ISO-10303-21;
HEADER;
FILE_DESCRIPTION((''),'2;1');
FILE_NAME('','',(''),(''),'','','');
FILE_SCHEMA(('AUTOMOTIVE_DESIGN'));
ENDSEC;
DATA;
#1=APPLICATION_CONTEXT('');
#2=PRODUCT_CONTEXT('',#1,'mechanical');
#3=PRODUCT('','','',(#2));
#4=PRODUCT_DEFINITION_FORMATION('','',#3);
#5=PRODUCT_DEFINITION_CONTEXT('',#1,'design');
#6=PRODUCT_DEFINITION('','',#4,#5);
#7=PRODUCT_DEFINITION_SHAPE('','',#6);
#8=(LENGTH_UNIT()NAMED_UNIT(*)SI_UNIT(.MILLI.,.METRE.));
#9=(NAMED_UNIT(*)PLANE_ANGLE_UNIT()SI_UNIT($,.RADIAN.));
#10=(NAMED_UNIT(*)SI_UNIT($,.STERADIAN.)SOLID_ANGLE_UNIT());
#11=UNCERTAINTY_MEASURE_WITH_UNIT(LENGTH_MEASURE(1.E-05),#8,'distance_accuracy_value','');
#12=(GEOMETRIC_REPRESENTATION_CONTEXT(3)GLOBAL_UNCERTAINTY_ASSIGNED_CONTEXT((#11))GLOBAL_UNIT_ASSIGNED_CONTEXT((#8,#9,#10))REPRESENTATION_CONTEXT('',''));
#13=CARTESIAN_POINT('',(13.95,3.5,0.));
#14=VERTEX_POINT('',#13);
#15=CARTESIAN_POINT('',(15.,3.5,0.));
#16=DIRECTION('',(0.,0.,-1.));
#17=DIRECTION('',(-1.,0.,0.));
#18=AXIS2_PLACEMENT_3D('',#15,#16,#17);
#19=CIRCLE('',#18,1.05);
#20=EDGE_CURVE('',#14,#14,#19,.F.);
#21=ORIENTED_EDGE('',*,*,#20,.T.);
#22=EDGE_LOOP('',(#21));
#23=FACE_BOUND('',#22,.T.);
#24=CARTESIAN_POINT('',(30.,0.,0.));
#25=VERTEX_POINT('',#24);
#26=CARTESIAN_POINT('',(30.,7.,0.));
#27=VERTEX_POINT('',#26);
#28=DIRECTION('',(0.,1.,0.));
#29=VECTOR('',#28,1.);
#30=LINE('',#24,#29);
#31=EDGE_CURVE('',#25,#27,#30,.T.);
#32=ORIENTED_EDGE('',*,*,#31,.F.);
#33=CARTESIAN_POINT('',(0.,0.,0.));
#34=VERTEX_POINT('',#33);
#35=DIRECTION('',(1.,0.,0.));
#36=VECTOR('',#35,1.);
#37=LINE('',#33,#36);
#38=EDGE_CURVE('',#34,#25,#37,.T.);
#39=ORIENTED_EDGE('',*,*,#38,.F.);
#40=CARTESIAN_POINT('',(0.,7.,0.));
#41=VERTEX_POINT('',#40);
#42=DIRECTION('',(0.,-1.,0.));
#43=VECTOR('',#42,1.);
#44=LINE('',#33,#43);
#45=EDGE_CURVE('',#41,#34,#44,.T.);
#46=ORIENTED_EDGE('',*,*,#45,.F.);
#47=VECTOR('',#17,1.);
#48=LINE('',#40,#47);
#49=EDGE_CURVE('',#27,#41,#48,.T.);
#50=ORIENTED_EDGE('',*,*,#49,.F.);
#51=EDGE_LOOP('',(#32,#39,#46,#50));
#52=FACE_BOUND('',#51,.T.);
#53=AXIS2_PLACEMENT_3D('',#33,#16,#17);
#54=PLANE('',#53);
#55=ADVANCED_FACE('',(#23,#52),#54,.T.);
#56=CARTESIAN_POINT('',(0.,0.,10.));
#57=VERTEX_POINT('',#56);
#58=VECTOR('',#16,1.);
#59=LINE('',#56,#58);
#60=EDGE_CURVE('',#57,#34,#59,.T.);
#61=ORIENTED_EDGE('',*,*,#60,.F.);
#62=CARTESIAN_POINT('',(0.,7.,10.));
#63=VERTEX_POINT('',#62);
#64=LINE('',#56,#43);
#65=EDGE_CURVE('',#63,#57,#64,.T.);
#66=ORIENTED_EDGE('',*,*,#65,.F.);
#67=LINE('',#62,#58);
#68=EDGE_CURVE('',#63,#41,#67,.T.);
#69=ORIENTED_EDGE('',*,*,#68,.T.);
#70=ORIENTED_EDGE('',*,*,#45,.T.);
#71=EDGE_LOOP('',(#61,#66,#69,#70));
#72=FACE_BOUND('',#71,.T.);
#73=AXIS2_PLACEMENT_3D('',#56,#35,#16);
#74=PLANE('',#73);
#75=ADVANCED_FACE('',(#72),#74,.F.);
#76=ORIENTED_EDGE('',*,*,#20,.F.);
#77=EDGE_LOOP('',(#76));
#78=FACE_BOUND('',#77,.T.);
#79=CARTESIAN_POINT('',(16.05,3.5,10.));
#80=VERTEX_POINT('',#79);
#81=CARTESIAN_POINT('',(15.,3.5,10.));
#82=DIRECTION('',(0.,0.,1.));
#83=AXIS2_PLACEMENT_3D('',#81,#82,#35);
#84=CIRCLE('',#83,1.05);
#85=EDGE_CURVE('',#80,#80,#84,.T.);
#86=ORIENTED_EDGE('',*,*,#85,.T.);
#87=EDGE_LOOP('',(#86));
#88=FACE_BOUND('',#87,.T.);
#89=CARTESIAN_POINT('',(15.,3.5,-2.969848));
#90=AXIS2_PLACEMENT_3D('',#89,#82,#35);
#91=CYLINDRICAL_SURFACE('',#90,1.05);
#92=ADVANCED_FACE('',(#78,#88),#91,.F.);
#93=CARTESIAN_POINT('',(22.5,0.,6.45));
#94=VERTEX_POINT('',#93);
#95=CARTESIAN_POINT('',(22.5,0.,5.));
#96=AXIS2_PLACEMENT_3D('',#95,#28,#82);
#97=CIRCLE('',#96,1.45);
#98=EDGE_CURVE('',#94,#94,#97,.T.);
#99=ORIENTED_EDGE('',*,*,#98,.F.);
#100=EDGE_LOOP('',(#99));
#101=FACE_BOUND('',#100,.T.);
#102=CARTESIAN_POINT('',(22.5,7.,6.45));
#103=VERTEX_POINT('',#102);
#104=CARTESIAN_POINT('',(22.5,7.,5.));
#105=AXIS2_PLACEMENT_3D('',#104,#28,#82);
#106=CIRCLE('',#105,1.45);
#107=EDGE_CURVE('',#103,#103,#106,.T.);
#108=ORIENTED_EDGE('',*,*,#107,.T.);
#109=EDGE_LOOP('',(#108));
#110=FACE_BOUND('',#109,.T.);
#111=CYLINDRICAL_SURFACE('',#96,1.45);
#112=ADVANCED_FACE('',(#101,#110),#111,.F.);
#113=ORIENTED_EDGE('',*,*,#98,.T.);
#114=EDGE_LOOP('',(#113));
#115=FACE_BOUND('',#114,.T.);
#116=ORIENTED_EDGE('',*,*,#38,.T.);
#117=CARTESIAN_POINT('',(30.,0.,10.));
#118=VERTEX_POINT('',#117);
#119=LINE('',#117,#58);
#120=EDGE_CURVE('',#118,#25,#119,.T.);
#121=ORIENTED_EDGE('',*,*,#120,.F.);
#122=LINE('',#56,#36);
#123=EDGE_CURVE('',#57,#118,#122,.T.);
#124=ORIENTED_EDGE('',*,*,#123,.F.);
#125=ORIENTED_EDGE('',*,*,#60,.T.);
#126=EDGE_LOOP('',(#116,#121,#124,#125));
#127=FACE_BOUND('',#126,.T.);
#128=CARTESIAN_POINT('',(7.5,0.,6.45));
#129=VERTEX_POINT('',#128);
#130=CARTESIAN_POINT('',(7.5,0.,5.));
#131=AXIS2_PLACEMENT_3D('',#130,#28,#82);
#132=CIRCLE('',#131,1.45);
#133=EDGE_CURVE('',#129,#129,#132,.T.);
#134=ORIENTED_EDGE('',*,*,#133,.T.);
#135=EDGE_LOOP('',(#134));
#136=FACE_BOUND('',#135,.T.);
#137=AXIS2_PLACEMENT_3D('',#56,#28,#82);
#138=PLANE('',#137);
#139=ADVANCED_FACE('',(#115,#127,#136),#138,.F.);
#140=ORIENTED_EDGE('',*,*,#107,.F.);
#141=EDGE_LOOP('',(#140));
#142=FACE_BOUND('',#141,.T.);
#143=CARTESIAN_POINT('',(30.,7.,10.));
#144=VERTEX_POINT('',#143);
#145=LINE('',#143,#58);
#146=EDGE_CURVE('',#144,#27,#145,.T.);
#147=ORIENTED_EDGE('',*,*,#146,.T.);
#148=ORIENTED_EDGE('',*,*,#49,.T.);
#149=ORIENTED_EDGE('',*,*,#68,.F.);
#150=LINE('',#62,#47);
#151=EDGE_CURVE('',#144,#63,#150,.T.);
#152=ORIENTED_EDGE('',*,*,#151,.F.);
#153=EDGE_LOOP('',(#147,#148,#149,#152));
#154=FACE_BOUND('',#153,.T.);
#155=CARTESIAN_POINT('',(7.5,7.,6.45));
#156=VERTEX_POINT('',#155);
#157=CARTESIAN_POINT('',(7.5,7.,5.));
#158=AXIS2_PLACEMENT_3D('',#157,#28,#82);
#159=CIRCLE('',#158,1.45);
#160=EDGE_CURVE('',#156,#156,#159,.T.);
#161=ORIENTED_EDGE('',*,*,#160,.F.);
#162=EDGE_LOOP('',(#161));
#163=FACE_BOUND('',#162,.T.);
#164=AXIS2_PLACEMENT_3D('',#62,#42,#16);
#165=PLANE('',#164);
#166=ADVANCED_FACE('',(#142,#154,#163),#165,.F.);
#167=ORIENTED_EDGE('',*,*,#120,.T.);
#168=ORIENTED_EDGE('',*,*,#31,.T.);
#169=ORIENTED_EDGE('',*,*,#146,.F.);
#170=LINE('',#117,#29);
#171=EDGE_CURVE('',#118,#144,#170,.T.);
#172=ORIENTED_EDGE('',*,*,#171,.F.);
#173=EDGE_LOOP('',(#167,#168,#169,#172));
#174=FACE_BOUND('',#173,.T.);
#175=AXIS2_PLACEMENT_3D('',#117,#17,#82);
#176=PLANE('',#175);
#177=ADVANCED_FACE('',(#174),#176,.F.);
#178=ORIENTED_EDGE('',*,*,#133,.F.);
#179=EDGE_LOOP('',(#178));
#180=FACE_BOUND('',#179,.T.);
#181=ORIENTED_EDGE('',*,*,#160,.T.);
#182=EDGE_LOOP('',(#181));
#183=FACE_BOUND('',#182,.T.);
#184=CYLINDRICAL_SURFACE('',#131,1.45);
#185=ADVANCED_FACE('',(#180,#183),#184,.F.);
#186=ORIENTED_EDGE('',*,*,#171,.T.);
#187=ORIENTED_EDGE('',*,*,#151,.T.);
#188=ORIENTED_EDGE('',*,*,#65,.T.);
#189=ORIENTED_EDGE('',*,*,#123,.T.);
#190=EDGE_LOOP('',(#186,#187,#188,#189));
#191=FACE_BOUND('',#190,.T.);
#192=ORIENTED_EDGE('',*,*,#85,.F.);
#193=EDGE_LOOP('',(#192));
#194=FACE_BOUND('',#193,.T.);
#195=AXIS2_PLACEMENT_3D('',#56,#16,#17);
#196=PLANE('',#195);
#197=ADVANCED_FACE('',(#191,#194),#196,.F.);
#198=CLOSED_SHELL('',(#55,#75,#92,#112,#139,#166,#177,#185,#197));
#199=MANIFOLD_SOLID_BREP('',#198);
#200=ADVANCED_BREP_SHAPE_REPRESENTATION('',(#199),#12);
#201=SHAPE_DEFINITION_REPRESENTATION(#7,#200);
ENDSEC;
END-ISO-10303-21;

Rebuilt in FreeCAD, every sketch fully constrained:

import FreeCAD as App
import Part
import Sketcher
from FreeCAD import Vector
Q = App.Units.Quantity

doc = App.newDocument("Part")
body = doc.addObject("PartDesign::Body", "Body")

# Sketch on XY plane
sketch1 = body.newObject("Sketcher::SketchObject", "Sketch")
sketch1.AttachmentSupport = (doc.getObject("XY_Plane"), [""])
sketch1.MapMode = "FlatFace"
sketch1.addGeometry([
    Part.LineSegment(Vector(0, 7, 0), Vector(0, 0, 0)),
    Part.LineSegment(Vector(0, 0, 0), Vector(30, 0, 0)),
    Part.LineSegment(Vector(30, 0, 0), Vector(30, 7, 0)),
    Part.LineSegment(Vector(30, 7, 0), Vector(0, 7, 0)),
], False)
sketch1.addConstraint([
    Sketcher.Constraint("Coincident", 0, 2, 1, 1),
    Sketcher.Constraint("Coincident", 1, 2, 2, 1),
    Sketcher.Constraint("Coincident", 2, 2, 3, 1),
    Sketcher.Constraint("Coincident", 3, 2, 0, 1),
    Sketcher.Constraint("Vertical", 0),
    Sketcher.Constraint("Horizontal", 1),
    Sketcher.Constraint("Vertical", 2),
    Sketcher.Constraint("Horizontal", 3),
    Sketcher.Constraint("Coincident", 0, 2, -1, 1),
    Sketcher.Constraint("DistanceX", 1, 1, 1, 2, Q("30 mm")),
    Sketcher.Constraint("DistanceY", 0, 2, 0, 1, Q("7 mm")),
])
pad1 = body.newObject("PartDesign::Pad", "Pad")
pad1.Profile = sketch1
pad1.Length = 10

# Sketch on XY plane
sketch2 = body.newObject("Sketcher::SketchObject", "Sketch001")
sketch2.AttachmentSupport = (doc.getObject("XY_Plane"), [""])
sketch2.MapMode = "FlatFace"
sketch2.AttachmentOffset = App.Placement(Vector(0, 0, 10), App.Rotation())
sketch2.addGeometry(Part.Circle(Vector(15, 3.5, 0), Vector(0, 0, 1), 1.1), False)
sketch2.addConstraint([
    Sketcher.Constraint("Diameter", 0, Q("2.1 mm")),
    Sketcher.Constraint("DistanceX", -1, 1, 0, 3, Q("15 mm")),
    Sketcher.Constraint("DistanceY", -1, 1, 0, 3, Q("3.5 mm")),
])
pocket1 = body.newObject("PartDesign::Pocket", "Pocket")
pocket1.Profile = sketch2
pocket1.Length = 10

# Sketch on XZ plane
sketch3 = body.newObject("Sketcher::SketchObject", "Sketch002")
sketch3.AttachmentSupport = (doc.getObject("XZ_Plane"), [""])
sketch3.MapMode = "FlatFace"
sketch3.AttachmentOffset = App.Placement(Vector(0, 0, -7), App.Rotation())
sketch3.addGeometry([
    Part.Circle(Vector(7.5, 5, 0), Vector(0, 0, 1), 1.4),
    Part.Circle(Vector(22.5, 5, 0), Vector(0, 0, 1), 1.4),
], False)
sketch3.addConstraint([
    Sketcher.Constraint("Equal", 0, 1),
    Sketcher.Constraint("Horizontal", 0, 3, 1, 3),
    Sketcher.Constraint("Diameter", 0, Q("2.9 mm")),
    Sketcher.Constraint("DistanceY", -1, 1, 0, 3, Q("5 mm")),
    Sketcher.Constraint("DistanceX", 0, 3, 1, 3, Q("15 mm")),
    Sketcher.Constraint("DistanceX", -1, 1, 0, 3, Q("7.5 mm")),
])
pocket2 = body.newObject("PartDesign::Pocket", "Pocket001")
pocket2.Profile = sketch3
pocket2.Type = "ThroughAll"
pocket2.Reversed = True

doc.recompute()
